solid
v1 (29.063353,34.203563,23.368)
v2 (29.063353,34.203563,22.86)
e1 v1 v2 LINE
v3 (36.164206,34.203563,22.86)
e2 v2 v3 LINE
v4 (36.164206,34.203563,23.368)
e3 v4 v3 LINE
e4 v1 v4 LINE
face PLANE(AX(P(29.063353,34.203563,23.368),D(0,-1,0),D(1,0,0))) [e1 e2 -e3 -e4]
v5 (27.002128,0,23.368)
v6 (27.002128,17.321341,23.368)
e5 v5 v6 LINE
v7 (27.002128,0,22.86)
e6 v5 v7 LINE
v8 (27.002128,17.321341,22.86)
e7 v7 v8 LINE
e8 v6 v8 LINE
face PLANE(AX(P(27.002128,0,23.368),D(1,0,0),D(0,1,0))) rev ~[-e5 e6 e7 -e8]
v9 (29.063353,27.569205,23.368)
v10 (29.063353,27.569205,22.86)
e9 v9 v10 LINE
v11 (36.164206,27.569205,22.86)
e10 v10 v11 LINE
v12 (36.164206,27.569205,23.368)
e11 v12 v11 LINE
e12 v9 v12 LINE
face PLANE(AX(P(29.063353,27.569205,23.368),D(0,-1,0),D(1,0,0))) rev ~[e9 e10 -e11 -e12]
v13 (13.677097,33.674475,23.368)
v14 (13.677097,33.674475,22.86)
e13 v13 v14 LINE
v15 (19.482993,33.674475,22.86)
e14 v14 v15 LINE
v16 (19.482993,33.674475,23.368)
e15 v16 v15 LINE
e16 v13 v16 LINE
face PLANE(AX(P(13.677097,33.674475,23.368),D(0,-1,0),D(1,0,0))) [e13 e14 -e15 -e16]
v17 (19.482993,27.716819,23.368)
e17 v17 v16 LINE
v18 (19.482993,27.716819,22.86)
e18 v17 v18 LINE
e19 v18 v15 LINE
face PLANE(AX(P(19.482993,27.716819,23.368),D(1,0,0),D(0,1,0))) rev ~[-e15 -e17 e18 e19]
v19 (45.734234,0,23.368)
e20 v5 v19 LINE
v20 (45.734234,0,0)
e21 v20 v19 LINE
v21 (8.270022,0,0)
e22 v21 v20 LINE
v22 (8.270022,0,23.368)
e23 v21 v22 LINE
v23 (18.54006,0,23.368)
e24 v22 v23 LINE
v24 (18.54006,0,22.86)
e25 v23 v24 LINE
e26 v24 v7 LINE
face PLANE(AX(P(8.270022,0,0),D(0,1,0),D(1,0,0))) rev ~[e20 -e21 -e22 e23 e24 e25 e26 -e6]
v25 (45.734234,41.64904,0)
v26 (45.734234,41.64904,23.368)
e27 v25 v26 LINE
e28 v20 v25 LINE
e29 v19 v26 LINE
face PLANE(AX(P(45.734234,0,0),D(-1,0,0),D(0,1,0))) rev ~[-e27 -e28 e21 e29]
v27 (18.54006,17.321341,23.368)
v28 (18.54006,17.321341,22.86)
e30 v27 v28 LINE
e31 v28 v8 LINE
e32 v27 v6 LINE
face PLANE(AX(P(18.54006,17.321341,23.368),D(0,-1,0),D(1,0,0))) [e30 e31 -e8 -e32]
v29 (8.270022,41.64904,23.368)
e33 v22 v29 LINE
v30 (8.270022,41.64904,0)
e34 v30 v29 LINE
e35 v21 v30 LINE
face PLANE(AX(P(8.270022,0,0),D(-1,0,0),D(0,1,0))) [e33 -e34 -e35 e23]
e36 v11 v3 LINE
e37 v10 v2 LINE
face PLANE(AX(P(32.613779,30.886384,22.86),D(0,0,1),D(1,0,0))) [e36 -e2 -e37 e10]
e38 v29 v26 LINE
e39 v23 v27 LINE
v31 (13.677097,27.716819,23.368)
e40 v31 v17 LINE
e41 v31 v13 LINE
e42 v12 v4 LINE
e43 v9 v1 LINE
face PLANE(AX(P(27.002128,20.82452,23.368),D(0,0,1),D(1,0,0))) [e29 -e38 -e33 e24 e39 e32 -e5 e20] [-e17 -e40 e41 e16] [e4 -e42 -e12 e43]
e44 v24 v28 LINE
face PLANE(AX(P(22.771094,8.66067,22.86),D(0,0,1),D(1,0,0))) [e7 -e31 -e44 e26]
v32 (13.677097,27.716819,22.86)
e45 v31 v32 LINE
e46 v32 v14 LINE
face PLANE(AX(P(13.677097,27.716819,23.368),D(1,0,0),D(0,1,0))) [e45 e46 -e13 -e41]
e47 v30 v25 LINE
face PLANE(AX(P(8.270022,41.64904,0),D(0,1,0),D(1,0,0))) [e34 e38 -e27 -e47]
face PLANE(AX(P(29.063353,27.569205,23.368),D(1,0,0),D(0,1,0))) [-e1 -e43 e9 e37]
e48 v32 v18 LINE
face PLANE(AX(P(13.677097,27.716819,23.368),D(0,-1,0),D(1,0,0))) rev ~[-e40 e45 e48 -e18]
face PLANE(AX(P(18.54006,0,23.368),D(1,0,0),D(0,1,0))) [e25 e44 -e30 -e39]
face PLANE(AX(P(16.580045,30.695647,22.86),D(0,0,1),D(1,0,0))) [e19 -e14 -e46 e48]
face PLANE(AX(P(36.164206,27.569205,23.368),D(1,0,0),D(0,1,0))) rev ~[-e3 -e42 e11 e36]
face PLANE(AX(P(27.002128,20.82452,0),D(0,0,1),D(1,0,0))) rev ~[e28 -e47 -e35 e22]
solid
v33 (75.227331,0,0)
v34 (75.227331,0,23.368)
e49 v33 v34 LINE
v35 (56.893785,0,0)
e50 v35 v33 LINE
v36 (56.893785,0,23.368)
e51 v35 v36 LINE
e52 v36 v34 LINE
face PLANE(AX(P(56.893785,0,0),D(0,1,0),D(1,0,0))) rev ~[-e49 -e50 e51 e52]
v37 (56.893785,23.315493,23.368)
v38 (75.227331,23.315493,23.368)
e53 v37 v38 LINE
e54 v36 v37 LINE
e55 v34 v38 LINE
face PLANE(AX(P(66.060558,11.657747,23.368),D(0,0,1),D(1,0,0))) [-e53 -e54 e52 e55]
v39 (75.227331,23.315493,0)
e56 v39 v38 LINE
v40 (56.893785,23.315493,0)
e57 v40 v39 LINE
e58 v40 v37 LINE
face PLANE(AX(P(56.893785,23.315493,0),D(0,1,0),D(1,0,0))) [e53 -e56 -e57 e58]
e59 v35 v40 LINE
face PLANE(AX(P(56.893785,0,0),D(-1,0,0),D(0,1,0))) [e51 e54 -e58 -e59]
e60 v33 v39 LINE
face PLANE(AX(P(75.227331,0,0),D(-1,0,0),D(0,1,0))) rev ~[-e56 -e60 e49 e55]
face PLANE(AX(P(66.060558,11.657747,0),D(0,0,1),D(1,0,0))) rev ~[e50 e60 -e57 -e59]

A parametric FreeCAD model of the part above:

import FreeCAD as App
import Part
import Sketcher

V = App.Vector
Q = App.Units.Quantity


def add_polygon(sketch, points):
    """Adds a closed chain of lines whose ends are joined by coincident constraints."""
    first, n = sketch.GeometryCount, len(points)
    for a, b in zip(points, points[1:] + points[:1]):
        sketch.addGeometry(Part.LineSegment(App.Vector(*a, 0), App.Vector(*b, 0)), False)
    for i in range(n):
        sketch.addConstraint(Sketcher.Constraint("Coincident", first + i, 2, first + (i + 1) % n, 1))

doc = App.newDocument("Part")
body = doc.addObject("PartDesign::Body", "Body")

# Sketch on XY plane
sketch1 = body.newObject("Sketcher::SketchObject", "Sketch")
sketch1.AttachmentSupport = (doc.getObject("XY_Plane"), [""])
sketch1.MapMode = "FlatFace"
add_polygon(sketch1, [(8, 42), (8, 0), (46, 0), (46, 42)])  # lines 0-3
sketch1.addConstraint(Sketcher.Constraint("Vertical", 0))
sketch1.addConstraint(Sketcher.Constraint("Horizontal", 1))
sketch1.addConstraint(Sketcher.Constraint("Vertical", 2))
sketch1.addConstraint(Sketcher.Constraint("Horizontal", 3))
sketch1.addConstraint(Sketcher.Constraint("PointOnObject", 0, 2, -1))
sketch1.addConstraint(Sketcher.Constraint("DistanceY", 0, 2, 0, 1, Q("41.64904 mm")))
sketch1.addConstraint(Sketcher.Constraint("DistanceX", 1, 1, 1, 2, Q("37.464213 mm")))
sketch1.addConstraint(Sketcher.Constraint("DistanceX", -1, 1, 0, 2, Q("8.270022 mm")))
pad1 = body.newObject("PartDesign::Pad", "Pad")
pad1.Profile = sketch1
pad1.Length = Q("0.92 in")

# Sketch on XY plane
sketch2 = body.newObject("Sketcher::SketchObject", "Sketch001")
sketch2.AttachmentSupport = (doc.getObject("XY_Plane"), [""])
sketch2.MapMode = "FlatFace"
sketch2.AttachmentOffset = App.Placement(V(0, 0, 0.92 * 25.4), App.Rotation())
add_polygon(sketch2, [(14, 34), (14, 28), (19, 28), (19, 34)])  # lines 0-3
add_polygon(sketch2, [(29, 34), (29, 28), (36, 28), (36, 34)])  # lines 4-7
add_polygon(sketch2, [(19, 17), (19, 0), (27, 0), (27, 17)])  # lines 8-11
sketch2.addConstraint(Sketcher.Constraint("Vertical", 0))
sketch2.addConstraint(Sketcher.Constraint("Horizontal", 1))
sketch2.addConstraint(Sketcher.Constraint("Vertical", 2))
sketch2.addConstraint(Sketcher.Constraint("Horizontal", 3))
sketch2.addConstraint(Sketcher.Constraint("Vertical", 4))
sketch2.addConstraint(Sketcher.Constraint("Horizontal", 5))
sketch2.addConstraint(Sketcher.Constraint("Vertical", 6))
sketch2.addConstraint(Sketcher.Constraint("Horizontal", 7))
sketch2.addConstraint(Sketcher.Constraint("Vertical", 8))
sketch2.addConstraint(Sketcher.Constraint("Horizontal", 9))
sketch2.addConstraint(Sketcher.Constraint("Vertical", 10))
sketch2.addConstraint(Sketcher.Constraint("Horizontal", 11))
sketch2.addConstraint(Sketcher.Constraint("PointOnObject", 8, 2, -1))
sketch2.addConstraint(Sketcher.Constraint("DistanceY", 4, 2, 4, 1, Q("6.634358 mm")))
sketch2.addConstraint(Sketcher.Constraint("DistanceY", 8, 2, 8, 1, Q("17.321341 mm")))
sketch2.addConstraint(Sketcher.Constraint("DistanceX", 1, 1, 1, 2, Q("5.805896 mm")))
sketch2.addConstraint(Sketcher.Constraint("DistanceX", 5, 1, 5, 2, Q("7.100852 mm")))
sketch2.addConstraint(Sketcher.Constraint("DistanceX", 9, 1, 9, 2, Q("8.462068 mm")))
sketch2.addConstraint(Sketcher.Constraint("DistanceY", 0, 2, 0, 1, Q("5.957656 mm")))
sketch2.addConstraint(Sketcher.Constraint("DistanceY", -1, 1, 0, 2, Q("27.716819 mm")))
sketch2.addConstraint(Sketcher.Constraint("DistanceX", -1, 1, 8, 2, Q("18.54006 mm")))
sketch2.addConstraint(Sketcher.Constraint("DistanceX", 1, 2, 4, 2, Q("9.580361 mm")))
sketch2.addConstraint(Sketcher.Constraint("DistanceY", 4, 2, 2, 2, Q("6.10527 mm")))
sketch2.addConstraint(Sketcher.Constraint("DistanceX", 0, 2, 9, 2, Q("13.325031 mm")))
pocket1 = body.newObject("PartDesign::Pocket", "Pocket")
pocket1.Profile = sketch2
pocket1.Length = Q("0.02 in")
body2 = doc.addObject("PartDesign::Body", "Body001")

# Sketch on XY plane
sketch3 = body2.newObject("Sketcher::SketchObject", "Sketch002")
sketch3.AttachmentSupport = (doc.getObject("XY_Plane001"), [""])
sketch3.MapMode = "FlatFace"
add_polygon(sketch3, [(57, 23), (57, 0), (75, 0), (75, 23)])  # lines 0-3
sketch3.addConstraint(Sketcher.Constraint("Vertical", 0))
sketch3.addConstraint(Sketcher.Constraint("Horizontal", 1))
sketch3.addConstraint(Sketcher.Constraint("Vertical", 2))
sketch3.addConstraint(Sketcher.Constraint("Horizontal", 3))
sketch3.addConstraint(Sketcher.Constraint("PointOnObject", 0, 2, -1))
sketch3.addConstraint(Sketcher.Constraint("DistanceX", 1, 1, 1, 2, Q("18.333547 mm")))
sketch3.addConstraint(Sketcher.Constraint("DistanceY", 0, 2, 0, 1, Q("23.315493 mm")))
sketch3.addConstraint(Sketcher.Constraint("DistanceX", -1, 1, 1, 2, Q("75.227331 mm")))
pad2 = body2.newObject("PartDesign::Pad", "Pad001")
pad2.Profile = sketch3
pad2.Length = Q("0.92 in")

doc.recompute()
